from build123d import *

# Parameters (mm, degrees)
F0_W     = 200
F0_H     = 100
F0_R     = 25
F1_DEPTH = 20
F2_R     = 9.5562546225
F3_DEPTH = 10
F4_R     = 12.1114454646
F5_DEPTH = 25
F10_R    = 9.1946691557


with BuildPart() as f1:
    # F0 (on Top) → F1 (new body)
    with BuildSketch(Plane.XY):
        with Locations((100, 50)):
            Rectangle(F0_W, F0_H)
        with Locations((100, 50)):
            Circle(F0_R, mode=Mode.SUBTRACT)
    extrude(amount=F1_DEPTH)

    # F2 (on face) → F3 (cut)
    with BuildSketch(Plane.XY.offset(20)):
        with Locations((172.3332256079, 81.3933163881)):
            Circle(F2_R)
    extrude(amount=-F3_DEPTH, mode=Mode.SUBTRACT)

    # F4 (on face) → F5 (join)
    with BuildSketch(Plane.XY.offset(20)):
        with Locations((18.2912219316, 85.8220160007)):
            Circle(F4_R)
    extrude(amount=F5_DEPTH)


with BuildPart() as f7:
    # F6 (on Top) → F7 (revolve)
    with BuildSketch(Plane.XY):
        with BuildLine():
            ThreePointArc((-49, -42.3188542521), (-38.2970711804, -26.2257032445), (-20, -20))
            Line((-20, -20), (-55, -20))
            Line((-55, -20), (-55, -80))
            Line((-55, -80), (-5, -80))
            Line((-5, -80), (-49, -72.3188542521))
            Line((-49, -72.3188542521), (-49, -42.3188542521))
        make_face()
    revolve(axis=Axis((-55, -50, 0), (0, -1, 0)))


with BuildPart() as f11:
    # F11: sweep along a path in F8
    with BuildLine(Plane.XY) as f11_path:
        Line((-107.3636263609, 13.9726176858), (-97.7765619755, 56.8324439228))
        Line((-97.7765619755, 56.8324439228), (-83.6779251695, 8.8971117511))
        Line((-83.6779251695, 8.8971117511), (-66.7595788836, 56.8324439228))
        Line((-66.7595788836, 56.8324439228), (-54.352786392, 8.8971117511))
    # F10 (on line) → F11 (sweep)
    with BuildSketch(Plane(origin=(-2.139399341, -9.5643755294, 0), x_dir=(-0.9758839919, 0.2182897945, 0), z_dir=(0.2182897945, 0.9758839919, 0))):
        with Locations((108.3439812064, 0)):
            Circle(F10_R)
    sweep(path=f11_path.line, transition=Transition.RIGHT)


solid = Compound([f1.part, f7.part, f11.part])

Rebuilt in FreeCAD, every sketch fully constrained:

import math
import FreeCAD as App
import Part
import Sketcher

doc = App.newDocument("Part")
body = doc.addObject("PartDesign::Body", "Body")

# Sketch on XY plane
sketch1 = body.newObject("Sketcher::SketchObject", "Sketch")
sketch1.AttachmentSupport = (doc.getObject("XY_Plane"), [""])
sketch1.MapMode = "FlatFace"
sketch1.addGeometry(Part.LineSegment(App.Vector(0, 100, 0), App.Vector(0, 0, 0)), False)
sketch1.addGeometry(Part.LineSegment(App.Vector(0, 0, 0), App.Vector(200, 0, 0)), False)
sketch1.addGeometry(Part.LineSegment(App.Vector(200, 0, 0), App.Vector(200, 100, 0)), False)
sketch1.addGeometry(Part.LineSegment(App.Vector(200, 100, 0), App.Vector(0, 100, 0)), False)
sketch1.addGeometry(Part.Circle(App.Vector(100, 50, 0), App.Vector(0, 0, 1), 25), False)
sketch1.addConstraint(Sketcher.Constraint("Coincident", 0, 2, 1, 1))
sketch1.addConstraint(Sketcher.Constraint("Coincident", 1, 2, 2, 1))
sketch1.addConstraint(Sketcher.Constraint("Coincident", 2, 2, 3, 1))
sketch1.addConstraint(Sketcher.Constraint("Coincident", 3, 2, 0, 1))
sketch1.addConstraint(Sketcher.Constraint("Vertical", 0))
sketch1.addConstraint(Sketcher.Constraint("Horizontal", 1))
sketch1.addConstraint(Sketcher.Constraint("Vertical", 2))
sketch1.addConstraint(Sketcher.Constraint("Horizontal", 3))
sketch1.addConstraint(Sketcher.Constraint("Coincident", 0, 2, -1, 1))
sketch1.addConstraint(Sketcher.Constraint("Diameter", 4, 50.0))
sketch1.addConstraint(Sketcher.Constraint("DistanceX", 1, 1, 1, 2, 200.0))
sketch1.addConstraint(Sketcher.Constraint("DistanceY", 0, 2, 0, 1, 100.0))
sketch1.addConstraint(Sketcher.Constraint("DistanceX", -1, 1, 4, 3, 100.0))
sketch1.addConstraint(Sketcher.Constraint("DistanceY", -1, 1, 4, 3, 50.0))
pad1 = body.newObject("PartDesign::Pad", "Pad")
pad1.Profile = sketch1
pad1.Length = 20

# Sketch on XY plane
sketch2 = body.newObject("Sketcher::SketchObject", "Sketch001")
sketch2.AttachmentSupport = (doc.getObject("XY_Plane"), [""])
sketch2.MapMode = "FlatFace"
sketch2.AttachmentOffset = App.Placement(App.Vector(0, 0, 20), App.Rotation())
sketch2.addGeometry(Part.Circle(App.Vector(172, 81, 0), App.Vector(0, 0, 1), 10), False)
sketch2.addConstraint(Sketcher.Constraint("Diameter", 0, 19.112509))
sketch2.addConstraint(Sketcher.Constraint("DistanceX", -1, 1, 0, 3, 172.333226))
sketch2.addConstraint(Sketcher.Constraint("DistanceY", -1, 1, 0, 3, 81.393316))
pocket1 = body.newObject("PartDesign::Pocket", "Pocket")
pocket1.Profile = sketch2
pocket1.Length = 10

# Sketch on XY plane
sketch3 = body.newObject("Sketcher::SketchObject", "Sketch002")
sketch3.AttachmentSupport = (doc.getObject("XY_Plane"), [""])
sketch3.MapMode = "FlatFace"
sketch3.AttachmentOffset = App.Placement(App.Vector(0, 0, 20), App.Rotation())
sketch3.addGeometry(Part.Circle(App.Vector(18, 86, 0), App.Vector(0, 0, 1), 12), False)
sketch3.addConstraint(Sketcher.Constraint("Diameter", 0, 24.222891))
sketch3.addConstraint(Sketcher.Constraint("DistanceX", -1, 1, 0, 3, 18.291222))
sketch3.addConstraint(Sketcher.Constraint("DistanceY", -1, 1, 0, 3, 85.822016))
pad2 = body.newObject("PartDesign::Pad", "Pad001")
pad2.Profile = sketch3
pad2.Length = 25
body2 = doc.addObject("PartDesign::Body", "Body001")

# Sketch on XY plane
sketch4 = body2.newObject("Sketcher::SketchObject", "Sketch003")
sketch4.AttachmentSupport = (doc.getObject("XY_Plane001"), [""])
sketch4.MapMode = "FlatFace"
sketch4.addGeometry(Part.ArcOfCircle(Part.Circle(App.Vector(-20, -50, 0), App.Vector(0, 0, 1), 30), math.radians(90), math.radians(165)), False)
sketch4.addGeometry(Part.LineSegment(App.Vector(-20, -20, 0), App.Vector(-55, -20, 0)), False)
sketch4.addGeometry(Part.LineSegment(App.Vector(-55, -20, 0), App.Vector(-55, -80, 0)), False)
sketch4.addGeometry(Part.LineSegment(App.Vector(-55, -80, 0), App.Vector(-5, -80, 0)), False)
sketch4.addGeometry(Part.LineSegment(App.Vector(-5, -80, 0), App.Vector(-49, -72, 0)), False)
sketch4.addGeometry(Part.LineSegment(App.Vector(-49, -72, 0), App.Vector(-49, -42, 0)), False)
sketch4.addGeometry(Part.LineSegment(App.Vector(-55, -20, 0), App.Vector(-55, -80, 0)), True)  # axis
sketch4.addConstraint(Sketcher.Constraint("Tangent", 0, 1, 1, 1))
sketch4.addConstraint(Sketcher.Constraint("Coincident", 1, 2, 2, 1))
sketch4.addConstraint(Sketcher.Constraint("Coincident", 2, 2, 3, 1))
sketch4.addConstraint(Sketcher.Constraint("Coincident", 3, 2, 4, 1))
sketch4.addConstraint(Sketcher.Constraint("Coincident", 4, 2, 5, 1))
sketch4.addConstraint(Sketcher.Constraint("Coincident", 5, 2, 0, 2))
sketch4.addConstraint(Sketcher.Constraint("Horizontal", 1))
sketch4.addConstraint(Sketcher.Constraint("Vertical", 2))
sketch4.addConstraint(Sketcher.Constraint("Horizontal", 3))
sketch4.addConstraint(Sketcher.Constraint("Vertical", 5))
sketch4.addConstraint(Sketcher.Constraint("Vertical", 6))
sketch4.addConstraint(Sketcher.Constraint("Coincident", 6, 1, 1, 2))
sketch4.addConstraint(Sketcher.Constraint("Horizontal", 3, 2, 6, 2))
sketch4.addConstraint(Sketcher.Constraint("Radius", 0, 30.0))
sketch4.addConstraint(Sketcher.Constraint("DistanceX", 1, 2, 1, 1, 35.0))
sketch4.addConstraint(Sketcher.Constraint("DistanceX", 3, 1, 3, 2, 50.0))
sketch4.addConstraint(Sketcher.Constraint("DistanceY", 2, 2, 2, 1, 60.0))
sketch4.addConstraint(Sketcher.Constraint("DistanceY", 5, 1, 5, 2, 30.0))
sketch4.addConstraint(Sketcher.Constraint("DistanceX", 0, 3, -1, 1, 20.0))
sketch4.addConstraint(Sketcher.Constraint("DistanceY", 0, 3, -1, 1, 50.0))
sketch4.addConstraint(Sketcher.Constraint("DistanceX", 4, 2, -1, 1, 49.0))
revolution = body2.newObject("PartDesign::Revolution", "Revolution")
revolution.Profile = sketch4
revolution.ReferenceAxis = (sketch4, ["Axis0"])
revolution.Angle = 360
body3 = doc.addObject("PartDesign::Body", "Body002")

# Sketch on an angled plane
sketch5 = body3.newObject("Sketcher::SketchObject", "Sketch004")
sketch5.Placement = App.Placement(App.Vector(-2.139399, -9.564376, 0), App.Rotation(App.Vector(-0.975883992, 0.218289794, 0), App.Vector(0, 0, 1), App.Vector(0.218289794, 0.975883992, 0), "ZXY"))
sketch5.addGeometry(Part.Circle(App.Vector(108, 0, 0), App.Vector(0, 0, 1), 9), False)
sketch5.addConstraint(Sketcher.Constraint("PointOnObject", 0, 3, -1))
sketch5.addConstraint(Sketcher.Constraint("Diameter", 0, 18.389338))
sketch5.addConstraint(Sketcher.Constraint("DistanceX", -1, 1, 0, 3, 108.343981))

# Sketch on XY plane
sketch6 = body3.newObject("Sketcher::SketchObject", "Sketch005")
sketch6.AttachmentSupport = (doc.getObject("XY_Plane002"), [""])
sketch6.MapMode = "FlatFace"
sketch6.addGeometry(Part.LineSegment(App.Vector(-107, 14, 0), App.Vector(-98, 57, 0)), False)
sketch6.addGeometry(Part.LineSegment(App.Vector(-98, 57, 0), App.Vector(-84, 9, 0)), False)
sketch6.addGeometry(Part.LineSegment(App.Vector(-84, 9, 0), App.Vector(-67, 57, 0)), False)
sketch6.addGeometry(Part.LineSegment(App.Vector(-67, 57, 0), App.Vector(-54, 9, 0)), False)
sketch6.addConstraint(Sketcher.Constraint("Coincident", 0, 2, 1, 1))
sketch6.addConstraint(Sketcher.Constraint("Coincident", 1, 2, 2, 1))
sketch6.addConstraint(Sketcher.Constraint("Coincident", 2, 2, 3, 1))
sketch6.addConstraint(Sketcher.Constraint("Horizontal", 0, 2, 2, 2))
sketch6.addConstraint(Sketcher.Constraint("Horizontal", 1, 2, 3, 2))
sketch6.addConstraint(Sketcher.Constraint("DistanceX", 0, 1, 1, 2, 23.685701))
sketch6.addConstraint(Sketcher.Constraint("Distance", 2, 50.833321))
sketch6.addConstraint(Sketcher.Constraint("DistanceX", 0, 2, -1, 1, 97.776562))
sketch6.addConstraint(Sketcher.Constraint("DistanceY", -1, 1, 1, 2, 8.897112))
sketch6.addConstraint(Sketcher.Constraint("DistanceX", 2, 2, -1, 1, 66.759579))
sketch6.addConstraint(Sketcher.Constraint("DistanceX", 1, 2, 3, 2, 29.325139))
sketch6.addConstraint(Sketcher.Constraint("Distance", 0, 43.918977))
sketch6.addConstraint(Sketcher.Constraint("Distance", 1, 49.965665))
doc.recompute()

additivepipe = body3.newObject("PartDesign::AdditivePipe", "AdditivePipe")
additivepipe.Profile = sketch5
additivepipe.Spine = (sketch6, ["Edge1", "Edge2", "Edge3", "Edge4"])
additivepipe.Transition = "Right corner"

doc.recompute()
